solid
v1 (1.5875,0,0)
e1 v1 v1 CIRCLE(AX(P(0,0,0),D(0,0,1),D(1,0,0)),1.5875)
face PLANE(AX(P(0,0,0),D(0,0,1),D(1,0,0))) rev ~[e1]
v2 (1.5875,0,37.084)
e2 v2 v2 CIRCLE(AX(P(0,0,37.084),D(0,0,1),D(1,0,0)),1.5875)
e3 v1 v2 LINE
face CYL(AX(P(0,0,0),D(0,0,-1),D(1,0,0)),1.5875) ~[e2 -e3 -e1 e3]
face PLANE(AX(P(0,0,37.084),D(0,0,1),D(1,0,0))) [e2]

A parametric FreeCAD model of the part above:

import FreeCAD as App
import Part
import Sketcher

V = App.Vector
Q = App.Units.Quantity

doc = App.newDocument("Part")
body = doc.addObject("PartDesign::Body", "Body")

sketch1 = body.newObject("Sketcher::SketchObject", "Sketch")
sketch1.AttachmentSupport = (doc.getObject("XY_Plane"), [""])
sketch1.MapMode = "FlatFace"
sketch1.addGeometry(Part.Circle(V(0, 0, 0), V(0, 0, 1), 1.6), False)
sketch1.addConstraint([
    Sketcher.Constraint("Coincident", 0, 3, -1, 1),
    Sketcher.Constraint("Diameter", 0, Q("0.125 in")),
])
pad1 = body.newObject("PartDesign::Pad", "Pad")
pad1.Profile = sketch1
pad1.Length = Q("1.46 in")

doc.recompute()
